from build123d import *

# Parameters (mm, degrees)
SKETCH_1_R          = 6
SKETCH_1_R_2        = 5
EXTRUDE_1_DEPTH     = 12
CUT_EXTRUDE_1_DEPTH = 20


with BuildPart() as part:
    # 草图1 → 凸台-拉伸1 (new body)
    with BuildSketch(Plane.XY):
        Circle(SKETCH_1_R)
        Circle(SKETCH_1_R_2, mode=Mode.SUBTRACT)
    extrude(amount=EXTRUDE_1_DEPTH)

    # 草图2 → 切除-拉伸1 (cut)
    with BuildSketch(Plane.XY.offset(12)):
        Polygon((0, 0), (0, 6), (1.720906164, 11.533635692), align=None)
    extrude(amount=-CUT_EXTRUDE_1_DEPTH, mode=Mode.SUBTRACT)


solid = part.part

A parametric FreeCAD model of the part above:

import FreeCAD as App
import Part
import Sketcher


def add_polygon(sketch, points):
    """Adds a closed chain of lines whose ends are joined by coincident constraints."""
    first, n = sketch.GeometryCount, len(points)
    for a, b in zip(points, points[1:] + points[:1]):
        sketch.addGeometry(Part.LineSegment(App.Vector(*a, 0), App.Vector(*b, 0)), False)
    for i in range(n):
        sketch.addConstraint(Sketcher.Constraint("Coincident", first + i, 2, first + (i + 1) % n, 1))

doc = App.newDocument("Part")
params = doc.addObject("Spreadsheet::Sheet", "Params")
for row, (alias, value) in enumerate([
    ("sketch1_diameter", "12 mm"),
    ("sketch1_diameter2", "10 mm"),
    ("pad1_length", "12 mm"),
    ("sketch2_height", "6 mm"),
    ("pocket1_length", "20 mm"),
], start=1):
    params.set(f"A{row}", alias)
    params.set(f"B{row}", "=" + value)
    params.setAlias(f"B{row}", alias)

body = doc.addObject("PartDesign::Body", "Body")

# Sketch on XY plane
sketch1 = body.newObject("Sketcher::SketchObject", "Sketch")
sketch1.AttachmentSupport = (doc.getObject("XY_Plane"), [""])
sketch1.MapMode = "FlatFace"
sketch1.addGeometry([
    Part.Circle(App.Vector(0, 0, 0), App.Vector(0, 0, 1), 6),
    Part.Circle(App.Vector(0, 0, 0), App.Vector(0, 0, 1), 5),
], False)
sketch1.addConstraint([
    Sketcher.Constraint("Coincident", 0, 3, -1, 1),
    Sketcher.Constraint("Coincident", 1, 3, -1, 1),
    Sketcher.Constraint("Diameter", 0, 12.0),
    Sketcher.Constraint("Diameter", 1, 10.0),
])
sketch1.setExpression("Constraints[2]", "Params.sketch1_diameter")
sketch1.setExpression("Constraints[3]", "Params.sketch1_diameter2")
pad1 = body.newObject("PartDesign::Pad", "Pad")
pad1.Profile = sketch1
pad1.setExpression("Length", "Params.pad1_length")

# Sketch on XY plane
sketch2 = body.newObject("Sketcher::SketchObject", "Sketch001")
sketch2.AttachmentSupport = (doc.getObject("XY_Plane"), [""])
sketch2.MapMode = "FlatFace"
sketch2.AttachmentOffset = App.Placement(App.Vector(0, 0, 12), App.Rotation())
add_polygon(sketch2, [(0, 6), (0, 0), (2, 12)])  # lines 0-2
sketch2.addConstraint([
    Sketcher.Constraint("Vertical", 0),
    Sketcher.Constraint("Coincident", 0, 2, -1, 1),
    Sketcher.Constraint("DistanceY", 0, 2, 0, 1, 6.0),
    Sketcher.Constraint("Distance", 1, 11.661315),
    Sketcher.Constraint("Distance", 2, 5.795053),
])
sketch2.setExpression("Constraints[5]", "Params.sketch2_height")
pocket1 = body.newObject("PartDesign::Pocket", "Pocket")
pocket1.Profile = sketch2
pocket1.setExpression("Length", "Params.pocket1_length")

doc.recompute()
